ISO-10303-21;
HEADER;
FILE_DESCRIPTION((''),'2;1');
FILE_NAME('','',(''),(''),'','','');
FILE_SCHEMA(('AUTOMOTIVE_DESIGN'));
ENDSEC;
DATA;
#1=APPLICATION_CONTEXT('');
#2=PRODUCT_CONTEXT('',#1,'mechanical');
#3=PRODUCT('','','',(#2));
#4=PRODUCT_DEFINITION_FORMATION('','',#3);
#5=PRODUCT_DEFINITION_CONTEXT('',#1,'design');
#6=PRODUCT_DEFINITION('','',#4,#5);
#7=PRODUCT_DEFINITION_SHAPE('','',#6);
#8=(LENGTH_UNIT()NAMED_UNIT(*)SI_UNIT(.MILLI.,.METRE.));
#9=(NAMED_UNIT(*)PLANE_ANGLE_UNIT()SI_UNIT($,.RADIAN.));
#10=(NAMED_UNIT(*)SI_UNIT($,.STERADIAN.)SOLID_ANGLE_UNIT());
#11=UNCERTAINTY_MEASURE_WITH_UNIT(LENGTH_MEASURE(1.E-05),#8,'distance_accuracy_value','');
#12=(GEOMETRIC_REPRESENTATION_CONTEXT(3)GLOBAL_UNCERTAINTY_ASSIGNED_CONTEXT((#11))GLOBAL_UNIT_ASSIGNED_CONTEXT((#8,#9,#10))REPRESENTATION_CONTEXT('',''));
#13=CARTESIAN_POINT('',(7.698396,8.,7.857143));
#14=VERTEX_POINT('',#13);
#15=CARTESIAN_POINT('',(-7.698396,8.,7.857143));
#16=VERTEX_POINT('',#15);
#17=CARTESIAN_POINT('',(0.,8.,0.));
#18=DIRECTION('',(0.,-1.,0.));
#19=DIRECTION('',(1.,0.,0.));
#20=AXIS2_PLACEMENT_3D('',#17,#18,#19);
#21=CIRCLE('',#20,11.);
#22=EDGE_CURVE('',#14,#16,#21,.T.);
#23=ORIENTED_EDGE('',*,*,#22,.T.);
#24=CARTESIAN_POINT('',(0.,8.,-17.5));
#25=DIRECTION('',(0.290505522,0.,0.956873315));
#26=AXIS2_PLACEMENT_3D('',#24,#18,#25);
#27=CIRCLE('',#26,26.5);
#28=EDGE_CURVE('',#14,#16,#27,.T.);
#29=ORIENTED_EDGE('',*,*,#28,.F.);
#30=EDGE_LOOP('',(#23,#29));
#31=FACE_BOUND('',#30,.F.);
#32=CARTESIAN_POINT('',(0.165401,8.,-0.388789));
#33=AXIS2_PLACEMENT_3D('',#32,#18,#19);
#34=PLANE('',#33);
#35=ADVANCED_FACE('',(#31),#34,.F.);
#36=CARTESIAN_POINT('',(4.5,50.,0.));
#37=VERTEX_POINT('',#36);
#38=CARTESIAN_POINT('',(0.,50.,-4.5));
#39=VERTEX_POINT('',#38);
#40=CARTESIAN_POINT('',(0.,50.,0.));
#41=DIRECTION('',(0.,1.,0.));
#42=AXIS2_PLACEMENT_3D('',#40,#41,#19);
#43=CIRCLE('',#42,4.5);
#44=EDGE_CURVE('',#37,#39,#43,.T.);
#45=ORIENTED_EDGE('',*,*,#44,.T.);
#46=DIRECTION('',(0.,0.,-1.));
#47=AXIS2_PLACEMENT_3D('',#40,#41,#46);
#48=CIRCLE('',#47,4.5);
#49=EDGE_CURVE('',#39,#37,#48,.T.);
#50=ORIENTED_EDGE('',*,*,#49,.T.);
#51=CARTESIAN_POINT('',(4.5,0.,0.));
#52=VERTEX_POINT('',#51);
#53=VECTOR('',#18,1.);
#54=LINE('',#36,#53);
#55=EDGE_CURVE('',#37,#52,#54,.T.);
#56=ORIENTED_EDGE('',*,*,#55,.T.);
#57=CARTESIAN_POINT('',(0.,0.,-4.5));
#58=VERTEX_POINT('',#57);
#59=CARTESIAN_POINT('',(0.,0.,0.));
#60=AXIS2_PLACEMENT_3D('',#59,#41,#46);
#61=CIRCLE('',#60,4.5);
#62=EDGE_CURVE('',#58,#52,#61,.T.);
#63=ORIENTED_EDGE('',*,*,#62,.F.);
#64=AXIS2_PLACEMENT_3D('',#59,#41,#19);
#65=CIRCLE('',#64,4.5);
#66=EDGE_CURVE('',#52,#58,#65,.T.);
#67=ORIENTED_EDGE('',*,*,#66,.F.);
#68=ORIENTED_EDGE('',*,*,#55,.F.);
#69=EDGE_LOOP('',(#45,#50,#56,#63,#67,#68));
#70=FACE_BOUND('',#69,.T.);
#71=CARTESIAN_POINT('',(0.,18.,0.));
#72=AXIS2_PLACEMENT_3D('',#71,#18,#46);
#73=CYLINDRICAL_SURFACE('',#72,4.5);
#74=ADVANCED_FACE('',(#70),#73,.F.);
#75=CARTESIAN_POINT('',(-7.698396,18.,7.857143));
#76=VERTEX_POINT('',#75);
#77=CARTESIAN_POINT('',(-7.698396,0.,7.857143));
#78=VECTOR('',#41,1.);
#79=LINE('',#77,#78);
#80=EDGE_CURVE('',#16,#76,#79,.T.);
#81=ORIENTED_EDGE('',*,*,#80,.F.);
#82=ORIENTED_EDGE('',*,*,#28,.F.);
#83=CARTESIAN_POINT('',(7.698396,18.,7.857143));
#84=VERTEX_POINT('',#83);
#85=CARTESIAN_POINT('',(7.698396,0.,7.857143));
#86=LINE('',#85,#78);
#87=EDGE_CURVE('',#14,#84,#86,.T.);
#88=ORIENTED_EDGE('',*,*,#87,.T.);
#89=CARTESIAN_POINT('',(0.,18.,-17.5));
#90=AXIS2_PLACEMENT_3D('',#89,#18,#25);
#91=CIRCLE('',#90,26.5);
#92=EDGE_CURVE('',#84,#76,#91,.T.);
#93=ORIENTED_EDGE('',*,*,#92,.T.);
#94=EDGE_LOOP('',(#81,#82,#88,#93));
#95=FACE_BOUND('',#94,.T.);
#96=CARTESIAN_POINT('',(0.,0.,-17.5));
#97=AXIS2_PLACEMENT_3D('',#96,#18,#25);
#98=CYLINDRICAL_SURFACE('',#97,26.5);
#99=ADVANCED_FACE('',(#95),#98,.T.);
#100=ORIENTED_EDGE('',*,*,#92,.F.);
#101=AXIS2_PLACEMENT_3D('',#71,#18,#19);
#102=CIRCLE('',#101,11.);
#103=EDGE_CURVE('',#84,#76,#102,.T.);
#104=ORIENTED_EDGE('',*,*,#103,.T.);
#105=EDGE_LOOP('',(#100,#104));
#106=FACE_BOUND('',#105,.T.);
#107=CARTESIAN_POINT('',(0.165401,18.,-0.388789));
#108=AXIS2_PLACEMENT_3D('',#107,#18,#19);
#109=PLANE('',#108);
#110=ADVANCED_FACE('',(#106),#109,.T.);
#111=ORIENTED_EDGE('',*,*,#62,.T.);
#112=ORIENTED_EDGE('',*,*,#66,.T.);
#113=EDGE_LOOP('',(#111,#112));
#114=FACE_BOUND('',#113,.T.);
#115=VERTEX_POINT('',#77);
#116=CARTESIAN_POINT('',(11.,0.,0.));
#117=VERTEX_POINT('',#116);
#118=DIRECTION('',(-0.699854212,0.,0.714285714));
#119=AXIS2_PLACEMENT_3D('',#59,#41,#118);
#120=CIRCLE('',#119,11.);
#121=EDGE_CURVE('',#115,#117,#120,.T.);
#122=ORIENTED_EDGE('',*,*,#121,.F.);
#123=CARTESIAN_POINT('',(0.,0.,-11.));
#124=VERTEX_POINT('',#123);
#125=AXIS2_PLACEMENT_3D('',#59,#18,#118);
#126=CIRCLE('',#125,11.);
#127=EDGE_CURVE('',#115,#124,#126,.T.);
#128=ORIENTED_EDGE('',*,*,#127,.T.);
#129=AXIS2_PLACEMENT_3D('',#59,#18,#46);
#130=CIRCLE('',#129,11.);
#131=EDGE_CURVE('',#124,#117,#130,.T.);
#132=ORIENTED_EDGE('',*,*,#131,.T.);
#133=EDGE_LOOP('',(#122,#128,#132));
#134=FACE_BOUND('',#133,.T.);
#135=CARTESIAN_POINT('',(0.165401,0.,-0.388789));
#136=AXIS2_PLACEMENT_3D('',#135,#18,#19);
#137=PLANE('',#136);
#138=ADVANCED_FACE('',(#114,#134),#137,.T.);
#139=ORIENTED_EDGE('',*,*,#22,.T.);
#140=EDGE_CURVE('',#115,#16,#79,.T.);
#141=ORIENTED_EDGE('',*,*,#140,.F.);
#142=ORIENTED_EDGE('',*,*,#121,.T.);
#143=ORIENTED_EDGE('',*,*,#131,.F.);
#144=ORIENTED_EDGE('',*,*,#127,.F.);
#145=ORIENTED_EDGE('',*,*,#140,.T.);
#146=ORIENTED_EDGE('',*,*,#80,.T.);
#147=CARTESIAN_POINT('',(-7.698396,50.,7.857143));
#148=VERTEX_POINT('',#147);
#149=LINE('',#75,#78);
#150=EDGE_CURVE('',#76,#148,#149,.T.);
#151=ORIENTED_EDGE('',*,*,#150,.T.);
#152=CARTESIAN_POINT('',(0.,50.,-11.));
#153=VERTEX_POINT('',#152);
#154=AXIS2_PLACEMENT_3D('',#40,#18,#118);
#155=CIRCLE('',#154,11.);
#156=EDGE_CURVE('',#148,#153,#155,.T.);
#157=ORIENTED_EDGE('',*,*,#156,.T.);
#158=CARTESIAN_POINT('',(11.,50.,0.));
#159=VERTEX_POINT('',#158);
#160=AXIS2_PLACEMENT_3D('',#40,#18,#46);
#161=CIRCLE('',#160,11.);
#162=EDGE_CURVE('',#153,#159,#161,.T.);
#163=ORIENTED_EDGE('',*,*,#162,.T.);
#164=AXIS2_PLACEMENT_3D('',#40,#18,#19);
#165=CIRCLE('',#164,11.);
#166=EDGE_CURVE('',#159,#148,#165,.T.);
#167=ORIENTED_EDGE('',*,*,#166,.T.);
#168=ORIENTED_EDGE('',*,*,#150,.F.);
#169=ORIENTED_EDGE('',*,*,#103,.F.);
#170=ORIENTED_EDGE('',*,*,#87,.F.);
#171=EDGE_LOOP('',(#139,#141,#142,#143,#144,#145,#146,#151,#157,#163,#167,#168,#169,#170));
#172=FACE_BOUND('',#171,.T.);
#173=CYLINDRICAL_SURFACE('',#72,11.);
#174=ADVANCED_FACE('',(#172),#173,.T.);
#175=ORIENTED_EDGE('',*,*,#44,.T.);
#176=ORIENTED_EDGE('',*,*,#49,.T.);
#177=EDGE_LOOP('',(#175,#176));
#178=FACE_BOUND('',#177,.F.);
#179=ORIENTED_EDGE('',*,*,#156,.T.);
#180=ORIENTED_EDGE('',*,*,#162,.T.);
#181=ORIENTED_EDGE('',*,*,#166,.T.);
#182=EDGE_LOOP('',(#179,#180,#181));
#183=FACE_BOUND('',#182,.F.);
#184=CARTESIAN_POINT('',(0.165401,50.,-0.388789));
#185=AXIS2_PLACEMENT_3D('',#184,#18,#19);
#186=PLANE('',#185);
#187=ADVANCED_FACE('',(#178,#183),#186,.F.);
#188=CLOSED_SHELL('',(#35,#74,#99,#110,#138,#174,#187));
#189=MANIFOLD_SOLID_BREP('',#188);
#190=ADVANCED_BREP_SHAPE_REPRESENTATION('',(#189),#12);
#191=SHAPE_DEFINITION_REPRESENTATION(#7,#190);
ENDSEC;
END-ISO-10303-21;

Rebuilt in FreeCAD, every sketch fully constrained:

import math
import FreeCAD as App
import Part
import Sketcher
Q = App.Units.Quantity

doc = App.newDocument("Part")
body = doc.addObject("PartDesign::Body", "Body")

# Sketch on XZ plane
sketch1 = body.newObject("Sketcher::SketchObject", "Sketch")
sketch1.AttachmentSupport = (doc.getObject("XZ_Plane"), [""])
sketch1.MapMode = "FlatFace"
sketch1.addGeometry(Part.ArcOfCircle(Part.Circle(App.Vector(0, 0, 0), App.Vector(0, 0, 1), 11), math.radians(-90), math.radians(0)), False)
sketch1.addGeometry(Part.ArcOfCircle(Part.Circle(App.Vector(0, 0, 0), App.Vector(0, 0, 1), 11), math.radians(0), math.radians(134)), False)
sketch1.addGeometry(Part.ArcOfCircle(Part.Circle(App.Vector(0, 0, 0), App.Vector(0, 0, 1), 11), math.radians(134), math.radians(270)), False)
sketch1.addGeometry(Part.ArcOfCircle(Part.Circle(App.Vector(0, 0, 0), App.Vector(0, 0, 1), 4.5), math.radians(0), math.radians(270)), False)
sketch1.addGeometry(Part.ArcOfCircle(Part.Circle(App.Vector(0, 0, 0), App.Vector(0, 0, 1), 4.5), math.radians(-90), math.radians(0)), False)
sketch1.addConstraint(Sketcher.Constraint("Tangent", 0, 2, 1, 1))
sketch1.addConstraint(Sketcher.Constraint("Tangent", 1, 2, 2, 1))
sketch1.addConstraint(Sketcher.Constraint("Tangent", 2, 2, 0, 1))
sketch1.addConstraint(Sketcher.Constraint("Tangent", 3, 1, 4, 2))
sketch1.addConstraint(Sketcher.Constraint("Coincident", 4, 1, 3, 2))
sketch1.addConstraint(Sketcher.Constraint("Coincident", 0, 3, -1, 1))
sketch1.addConstraint(Sketcher.Constraint("Coincident", 3, 3, -1, 1))
sketch1.addConstraint(Sketcher.Constraint("PointOnObject", 0, 2, -1))
sketch1.addConstraint(Sketcher.Constraint("PointOnObject", 2, 2, -2))
sketch1.addConstraint(Sketcher.Constraint("PointOnObject", 3, 1, -1))
sketch1.addConstraint(Sketcher.Constraint("PointOnObject", 4, 1, -2))
sketch1.addConstraint(Sketcher.Constraint("Radius", 0, Q("11 mm")))
sketch1.addConstraint(Sketcher.Constraint("Radius", 3, Q("4.5 mm")))
sketch1.addConstraint(Sketcher.Constraint("DistanceX", 1, 2, -1, 1, Q("7.698396 mm")))
pad1 = body.newObject("PartDesign::Pad", "Pad")
pad1.Profile = sketch1
pad1.Length = 8
pad1.Reversed = True

# Sketch on XZ plane
sketch2 = body.newObject("Sketcher::SketchObject", "Sketch001")
sketch2.AttachmentSupport = (doc.getObject("XZ_Plane"), [""])
sketch2.MapMode = "FlatFace"
sketch2.addGeometry(Part.ArcOfCircle(Part.Circle(App.Vector(0, 0, 0), App.Vector(0, 0, 1), 11), math.radians(-90), math.radians(0)), False)
sketch2.addGeometry(Part.ArcOfCircle(Part.Circle(App.Vector(0, 0, 0), App.Vector(0, 0, 1), 11), math.radians(0), math.radians(46)), False)
sketch2.addGeometry(Part.ArcOfCircle(Part.Circle(App.Vector(0, -17.5, 0), App.Vector(0, 0, 1), 26.5), math.radians(73), math.radians(107)), False)
sketch2.addGeometry(Part.ArcOfCircle(Part.Circle(App.Vector(0, 0, 0), App.Vector(0, 0, 1), 11), math.radians(134), math.radians(270)), False)
sketch2.addGeometry(Part.ArcOfCircle(Part.Circle(App.Vector(0, 0, 0), App.Vector(0, 0, 1), 4.5), math.radians(0), math.radians(270)), False)
sketch2.addGeometry(Part.ArcOfCircle(Part.Circle(App.Vector(0, 0, 0), App.Vector(0, 0, 1), 4.5), math.radians(-90), math.radians(0)), False)
sketch2.addConstraint(Sketcher.Constraint("Tangent", 0, 2, 1, 1))
sketch2.addConstraint(Sketcher.Constraint("Coincident", 1, 2, 2, 1))
sketch2.addConstraint(Sketcher.Constraint("Coincident", 2, 2, 3, 1))
sketch2.addConstraint(Sketcher.Constraint("Tangent", 3, 2, 0, 1))
sketch2.addConstraint(Sketcher.Constraint("Tangent", 4, 1, 5, 2))
sketch2.addConstraint(Sketcher.Constraint("Coincident", 5, 1, 4, 2))
sketch2.addConstraint(Sketcher.Constraint("Coincident", 0, 3, -1, 1))
sketch2.addConstraint(Sketcher.Constraint("Coincident", 4, 3, -1, 1))
sketch2.addConstraint(Sketcher.Constraint("Equal", 0, 1))
sketch2.addConstraint(Sketcher.Constraint("Equal", 1, 3))
sketch2.addConstraint(Sketcher.Constraint("PointOnObject", 2, 3, -2))
sketch2.addConstraint(Sketcher.Constraint("PointOnObject", 0, 2, -1))
sketch2.addConstraint(Sketcher.Constraint("PointOnObject", 3, 2, -2))
sketch2.addConstraint(Sketcher.Constraint("PointOnObject", 4, 1, -1))
sketch2.addConstraint(Sketcher.Constraint("PointOnObject", 5, 1, -2))
sketch2.addConstraint(Sketcher.Constraint("Radius", 0, Q("11 mm")))
sketch2.addConstraint(Sketcher.Constraint("Radius", 2, Q("26.5 mm")))
sketch2.addConstraint(Sketcher.Constraint("Radius", 4, Q("4.5 mm")))
sketch2.addConstraint(Sketcher.Constraint("DistanceY", 2, 3, -1, 1, Q("17.5 mm")))
pad2 = body.newObject("PartDesign::Pad", "Pad001")
pad2.Profile = sketch2
pad2.Length = 18
pad2.Reversed = True

# Sketch on XZ plane
sketch3 = body.newObject("Sketcher::SketchObject", "Sketch002")
sketch3.AttachmentSupport = (doc.getObject("XZ_Plane"), [""])
sketch3.MapMode = "FlatFace"
sketch3.AttachmentOffset = App.Placement(App.Vector(0, 0, -18), App.Rotation())
sketch3.addGeometry(Part.ArcOfCircle(Part.Circle(App.Vector(0, 0, 0), App.Vector(0, 0, 1), 11), math.radians(-90), math.radians(0)), False)
sketch3.addGeometry(Part.ArcOfCircle(Part.Circle(App.Vector(0, 0, 0), App.Vector(0, 0, 1), 11), math.radians(0), math.radians(134)), False)
sketch3.addGeometry(Part.ArcOfCircle(Part.Circle(App.Vector(0, 0, 0), App.Vector(0, 0, 1), 11), math.radians(134), math.radians(270)), False)
sketch3.addGeometry(Part.ArcOfCircle(Part.Circle(App.Vector(0, 0, 0), App.Vector(0, 0, 1), 4.5), math.radians(0), math.radians(270)), False)
sketch3.addGeometry(Part.ArcOfCircle(Part.Circle(App.Vector(0, 0, 0), App.Vector(0, 0, 1), 4.5), math.radians(-90), math.radians(0)), False)
sketch3.addConstraint(Sketcher.Constraint("Tangent", 0, 2, 1, 1))
sketch3.addConstraint(Sketcher.Constraint("Tangent", 1, 2, 2, 1))
sketch3.addConstraint(Sketcher.Constraint("Tangent", 2, 2, 0, 1))
sketch3.addConstraint(Sketcher.Constraint("Tangent", 3, 1, 4, 2))
sketch3.addConstraint(Sketcher.Constraint("Coincident", 4, 1, 3, 2))
sketch3.addConstraint(Sketcher.Constraint("Coincident", 0, 3, -1, 1))
sketch3.addConstraint(Sketcher.Constraint("Coincident", 3, 3, -1, 1))
sketch3.addConstraint(Sketcher.Constraint("PointOnObject", 0, 2, -1))
sketch3.addConstraint(Sketcher.Constraint("PointOnObject", 2, 2, -2))
sketch3.addConstraint(Sketcher.Constraint("PointOnObject", 3, 1, -1))
sketch3.addConstraint(Sketcher.Constraint("PointOnObject", 4, 1, -2))
sketch3.addConstraint(Sketcher.Constraint("Radius", 0, Q("11 mm")))
sketch3.addConstraint(Sketcher.Constraint("Radius", 3, Q("4.5 mm")))
sketch3.addConstraint(Sketcher.Constraint("DistanceX", 1, 2, -1, 1, Q("7.698396 mm")))
pad3 = body.newObject("PartDesign::Pad", "Pad002")
pad3.Profile = sketch3
pad3.Length = 32
pad3.Reversed = True

doc.recompute()
